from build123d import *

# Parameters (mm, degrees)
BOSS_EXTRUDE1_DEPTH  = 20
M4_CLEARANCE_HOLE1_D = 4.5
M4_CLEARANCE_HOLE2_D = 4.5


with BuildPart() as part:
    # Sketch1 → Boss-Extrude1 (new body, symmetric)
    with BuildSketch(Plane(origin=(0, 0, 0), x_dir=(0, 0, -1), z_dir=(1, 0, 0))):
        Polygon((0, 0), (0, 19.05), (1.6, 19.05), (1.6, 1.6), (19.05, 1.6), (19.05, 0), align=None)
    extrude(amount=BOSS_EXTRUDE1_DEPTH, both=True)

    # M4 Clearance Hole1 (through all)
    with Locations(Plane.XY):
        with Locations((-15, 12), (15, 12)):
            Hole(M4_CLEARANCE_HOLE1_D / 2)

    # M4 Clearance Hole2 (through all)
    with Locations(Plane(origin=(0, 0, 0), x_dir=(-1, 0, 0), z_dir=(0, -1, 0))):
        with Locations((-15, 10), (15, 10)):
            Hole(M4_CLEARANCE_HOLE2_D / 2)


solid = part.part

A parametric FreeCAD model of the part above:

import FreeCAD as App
import Part
import Sketcher
from FreeCAD import Vector
Q = App.Units.Quantity


def add_polygon(sketch, points):
    """Adds a closed chain of lines whose ends are joined by coincident constraints."""
    first, n = sketch.GeometryCount, len(points)
    for a, b in zip(points, points[1:] + points[:1]):
        sketch.addGeometry(Part.LineSegment(App.Vector(*a, 0), App.Vector(*b, 0)), False)
    for i in range(n):
        sketch.addConstraint(Sketcher.Constraint("Coincident", first + i, 2, first + (i + 1) % n, 1))

doc = App.newDocument("Part")
body = doc.addObject("PartDesign::Body", "Body")

sketch1 = doc.addObject("Sketcher::SketchObject", "Sketch")
body.addObject(sketch1)
sketch1.AttachmentSupport = (doc.YZ_Plane, [""])
sketch1.MapMode = "FlatFace"
add_polygon(sketch1, [(19.1, 0), (0, 0), (0, -19.1), (1.6, -19.1), (1.6, -1.6), (19.1, -1.6)])
sketch1.addConstraint([
    Sketcher.Constraint("Horizontal", 0),
    Sketcher.Constraint("Vertical", 1),
    Sketcher.Constraint("Horizontal", 2),
    Sketcher.Constraint("Vertical", 3),
    Sketcher.Constraint("Horizontal", 4),
    Sketcher.Constraint("Vertical", 5),
    Sketcher.Constraint("Coincident", 0, 2, -1, 1),
    Sketcher.Constraint("Equal", 0, 1),
    Sketcher.Constraint("Equal", 4, 3),
    Sketcher.Constraint("DistanceX", 2, 1, 2, 2, Q("1.6 mm")),
    Sketcher.Constraint("DistanceX", 0, 2, 0, 1, Q("19.05 mm")),
])
pad1 = doc.addObject("PartDesign::Pad", "Pad")
body.addObject(pad1)
pad1.Profile = sketch1
pad1.Length = 40
pad1.Midplane = True

sketch2 = doc.addObject("Sketcher::SketchObject", "Sketch001")
body.addObject(sketch2)
sketch2.AttachmentSupport = (doc.XY_Plane, [""])
sketch2.MapMode = "FlatFace"
sketch2.addGeometry([
    Part.Circle(Vector(-15, 12, 0), Vector(0, 0, 1), 2.2),
    Part.Circle(Vector(15, 12, 0), Vector(0, 0, 1), 2.2),
], False)
sketch2.addConstraint([
    Sketcher.Constraint("Equal", 0, 1),
    Sketcher.Constraint("Symmetric", 0, 3, 1, 3, -2),
    Sketcher.Constraint("Diameter", 0, Q("4.5 mm")),
    Sketcher.Constraint("DistanceX", 0, 3, -1, 1, Q("15 mm")),
    Sketcher.Constraint("DistanceY", -1, 1, 0, 3, Q("12 mm")),
])
doc.recompute()
hole = doc.addObject("PartDesign::Hole", "Hole")
body.addObject(hole)
hole.Profile = sketch2
hole.ThreadType = "None"
hole.Diameter = 4.5
hole.DepthType = "ThroughAll"

sketch3 = doc.addObject("Sketcher::SketchObject", "Sketch002")
body.addObject(sketch3)
sketch3.AttachmentSupport = (doc.XZ_Plane, [""])
sketch3.MapMode = "FlatFace"
sketch3.addGeometry([
    Part.Circle(Vector(15, -10, 0), Vector(0, 0, 1), 2.2),
    Part.Circle(Vector(-15, -10, 0), Vector(0, 0, 1), 2.2),
], False)
sketch3.addConstraint([
    Sketcher.Constraint("Equal", 0, 1),
    Sketcher.Constraint("Symmetric", 0, 3, 1, 3, -2),
    Sketcher.Constraint("Diameter", 0, Q("4.5 mm")),
    Sketcher.Constraint("DistanceX", -1, 1, 0, 3, Q("15 mm")),
    Sketcher.Constraint("DistanceY", 0, 3, -1, 1, Q("10 mm")),
])
doc.recompute()
hole2 = doc.addObject("PartDesign::Hole", "Hole001")
body.addObject(hole2)
hole2.Profile = sketch3
hole2.ThreadType = "None"
hole2.Diameter = 4.5
hole2.DepthType = "ThroughAll"

doc.recompute()
